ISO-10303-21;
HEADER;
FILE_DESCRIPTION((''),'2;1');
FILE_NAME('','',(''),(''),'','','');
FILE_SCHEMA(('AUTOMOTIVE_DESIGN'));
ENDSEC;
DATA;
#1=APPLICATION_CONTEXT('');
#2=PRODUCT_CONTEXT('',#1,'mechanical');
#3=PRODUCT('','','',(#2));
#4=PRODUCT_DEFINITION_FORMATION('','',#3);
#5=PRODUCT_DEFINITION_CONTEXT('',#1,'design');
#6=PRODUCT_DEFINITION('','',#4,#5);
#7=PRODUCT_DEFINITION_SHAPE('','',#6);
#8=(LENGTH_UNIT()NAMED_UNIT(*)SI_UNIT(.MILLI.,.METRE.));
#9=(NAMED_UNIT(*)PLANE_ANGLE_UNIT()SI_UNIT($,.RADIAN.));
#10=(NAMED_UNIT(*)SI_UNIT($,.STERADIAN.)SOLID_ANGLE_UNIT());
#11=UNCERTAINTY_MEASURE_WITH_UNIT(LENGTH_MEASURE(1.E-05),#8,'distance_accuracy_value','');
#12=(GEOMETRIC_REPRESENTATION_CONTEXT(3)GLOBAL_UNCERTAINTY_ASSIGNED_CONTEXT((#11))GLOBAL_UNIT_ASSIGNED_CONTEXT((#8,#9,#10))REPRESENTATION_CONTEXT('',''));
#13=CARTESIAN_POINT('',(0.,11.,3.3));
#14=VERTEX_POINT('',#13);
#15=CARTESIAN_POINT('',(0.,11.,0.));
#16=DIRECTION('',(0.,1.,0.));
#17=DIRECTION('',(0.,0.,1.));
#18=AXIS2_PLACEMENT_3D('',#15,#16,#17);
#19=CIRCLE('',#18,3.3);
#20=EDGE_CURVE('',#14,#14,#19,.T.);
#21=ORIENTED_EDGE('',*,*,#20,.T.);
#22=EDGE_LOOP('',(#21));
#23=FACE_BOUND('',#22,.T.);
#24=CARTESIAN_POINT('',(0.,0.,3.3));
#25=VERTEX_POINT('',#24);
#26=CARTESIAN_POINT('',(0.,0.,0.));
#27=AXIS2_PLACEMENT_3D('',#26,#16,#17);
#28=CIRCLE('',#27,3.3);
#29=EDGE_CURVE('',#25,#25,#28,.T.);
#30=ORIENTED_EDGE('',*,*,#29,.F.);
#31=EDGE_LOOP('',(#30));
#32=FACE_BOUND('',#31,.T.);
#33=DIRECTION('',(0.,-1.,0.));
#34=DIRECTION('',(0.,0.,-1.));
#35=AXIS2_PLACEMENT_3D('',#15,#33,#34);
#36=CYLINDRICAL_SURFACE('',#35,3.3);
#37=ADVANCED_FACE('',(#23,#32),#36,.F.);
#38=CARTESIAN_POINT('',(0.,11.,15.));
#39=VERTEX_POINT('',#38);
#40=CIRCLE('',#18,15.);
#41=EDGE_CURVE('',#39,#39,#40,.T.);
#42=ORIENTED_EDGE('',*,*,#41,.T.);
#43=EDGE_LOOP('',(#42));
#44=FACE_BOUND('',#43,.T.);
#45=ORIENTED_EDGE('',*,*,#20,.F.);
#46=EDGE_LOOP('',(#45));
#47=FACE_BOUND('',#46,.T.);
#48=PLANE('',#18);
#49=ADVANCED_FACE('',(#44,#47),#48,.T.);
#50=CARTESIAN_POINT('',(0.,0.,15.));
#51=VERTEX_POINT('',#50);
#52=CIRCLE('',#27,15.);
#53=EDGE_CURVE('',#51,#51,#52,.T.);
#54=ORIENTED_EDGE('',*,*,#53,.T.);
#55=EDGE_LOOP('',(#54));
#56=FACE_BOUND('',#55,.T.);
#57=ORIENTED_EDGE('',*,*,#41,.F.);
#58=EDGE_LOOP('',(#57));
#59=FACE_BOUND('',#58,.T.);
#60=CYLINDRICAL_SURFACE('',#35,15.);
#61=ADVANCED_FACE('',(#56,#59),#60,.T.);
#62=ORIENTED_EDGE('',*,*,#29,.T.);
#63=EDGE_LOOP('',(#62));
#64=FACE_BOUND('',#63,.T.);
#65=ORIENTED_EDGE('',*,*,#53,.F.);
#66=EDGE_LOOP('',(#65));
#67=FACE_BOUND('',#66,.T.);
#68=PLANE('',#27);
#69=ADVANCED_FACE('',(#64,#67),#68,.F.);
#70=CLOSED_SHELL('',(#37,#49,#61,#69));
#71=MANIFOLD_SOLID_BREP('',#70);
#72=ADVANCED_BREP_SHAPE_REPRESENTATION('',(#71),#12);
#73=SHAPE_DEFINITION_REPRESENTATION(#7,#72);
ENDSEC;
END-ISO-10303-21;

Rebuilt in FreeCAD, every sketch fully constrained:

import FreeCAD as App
import Part
import Sketcher

doc = App.newDocument("Part")
params = doc.addObject("Spreadsheet::Sheet", "Params")
for row, (alias, value) in enumerate([
    ("sketch1_diameter", "30 mm"),
    ("sketch1_diameter2", "6.6 mm"),
    ("pad1_length", "11 mm"),
], start=1):
    params.set(f"A{row}", alias)
    params.set(f"B{row}", "=" + value)
    params.setAlias(f"B{row}", alias)

body = doc.addObject("PartDesign::Body", "Body")

sketch1 = doc.addObject("Sketcher::SketchObject", "Sketch")
body.addObject(sketch1)
sketch1.AttachmentSupport = (doc.XZ_Plane, [""])
sketch1.MapMode = "FlatFace"
sketch1.addGeometry([
    Part.Circle(App.Vector(0, 0, 0), App.Vector(0, 0, 1), 15),
    Part.Circle(App.Vector(0, 0, 0), App.Vector(0, 0, 1), 3.3),
], False)
sketch1.addConstraint([
    Sketcher.Constraint("Coincident", 0, 3, -1, 1),
    Sketcher.Constraint("Coincident", 1, 3, -1, 1),
    Sketcher.Constraint("Diameter", 0, 30.0),
    Sketcher.Constraint("Diameter", 1, 6.6),
])
sketch1.setExpression("Constraints[2]", "Params.sketch1_diameter")
sketch1.setExpression("Constraints[3]", "Params.sketch1_diameter2")
pad1 = doc.addObject("PartDesign::Pad", "Pad")
body.addObject(pad1)
pad1.Profile = sketch1
pad1.setExpression("Length", "Params.pad1_length")
pad1.Reversed = True

doc.recompute()
